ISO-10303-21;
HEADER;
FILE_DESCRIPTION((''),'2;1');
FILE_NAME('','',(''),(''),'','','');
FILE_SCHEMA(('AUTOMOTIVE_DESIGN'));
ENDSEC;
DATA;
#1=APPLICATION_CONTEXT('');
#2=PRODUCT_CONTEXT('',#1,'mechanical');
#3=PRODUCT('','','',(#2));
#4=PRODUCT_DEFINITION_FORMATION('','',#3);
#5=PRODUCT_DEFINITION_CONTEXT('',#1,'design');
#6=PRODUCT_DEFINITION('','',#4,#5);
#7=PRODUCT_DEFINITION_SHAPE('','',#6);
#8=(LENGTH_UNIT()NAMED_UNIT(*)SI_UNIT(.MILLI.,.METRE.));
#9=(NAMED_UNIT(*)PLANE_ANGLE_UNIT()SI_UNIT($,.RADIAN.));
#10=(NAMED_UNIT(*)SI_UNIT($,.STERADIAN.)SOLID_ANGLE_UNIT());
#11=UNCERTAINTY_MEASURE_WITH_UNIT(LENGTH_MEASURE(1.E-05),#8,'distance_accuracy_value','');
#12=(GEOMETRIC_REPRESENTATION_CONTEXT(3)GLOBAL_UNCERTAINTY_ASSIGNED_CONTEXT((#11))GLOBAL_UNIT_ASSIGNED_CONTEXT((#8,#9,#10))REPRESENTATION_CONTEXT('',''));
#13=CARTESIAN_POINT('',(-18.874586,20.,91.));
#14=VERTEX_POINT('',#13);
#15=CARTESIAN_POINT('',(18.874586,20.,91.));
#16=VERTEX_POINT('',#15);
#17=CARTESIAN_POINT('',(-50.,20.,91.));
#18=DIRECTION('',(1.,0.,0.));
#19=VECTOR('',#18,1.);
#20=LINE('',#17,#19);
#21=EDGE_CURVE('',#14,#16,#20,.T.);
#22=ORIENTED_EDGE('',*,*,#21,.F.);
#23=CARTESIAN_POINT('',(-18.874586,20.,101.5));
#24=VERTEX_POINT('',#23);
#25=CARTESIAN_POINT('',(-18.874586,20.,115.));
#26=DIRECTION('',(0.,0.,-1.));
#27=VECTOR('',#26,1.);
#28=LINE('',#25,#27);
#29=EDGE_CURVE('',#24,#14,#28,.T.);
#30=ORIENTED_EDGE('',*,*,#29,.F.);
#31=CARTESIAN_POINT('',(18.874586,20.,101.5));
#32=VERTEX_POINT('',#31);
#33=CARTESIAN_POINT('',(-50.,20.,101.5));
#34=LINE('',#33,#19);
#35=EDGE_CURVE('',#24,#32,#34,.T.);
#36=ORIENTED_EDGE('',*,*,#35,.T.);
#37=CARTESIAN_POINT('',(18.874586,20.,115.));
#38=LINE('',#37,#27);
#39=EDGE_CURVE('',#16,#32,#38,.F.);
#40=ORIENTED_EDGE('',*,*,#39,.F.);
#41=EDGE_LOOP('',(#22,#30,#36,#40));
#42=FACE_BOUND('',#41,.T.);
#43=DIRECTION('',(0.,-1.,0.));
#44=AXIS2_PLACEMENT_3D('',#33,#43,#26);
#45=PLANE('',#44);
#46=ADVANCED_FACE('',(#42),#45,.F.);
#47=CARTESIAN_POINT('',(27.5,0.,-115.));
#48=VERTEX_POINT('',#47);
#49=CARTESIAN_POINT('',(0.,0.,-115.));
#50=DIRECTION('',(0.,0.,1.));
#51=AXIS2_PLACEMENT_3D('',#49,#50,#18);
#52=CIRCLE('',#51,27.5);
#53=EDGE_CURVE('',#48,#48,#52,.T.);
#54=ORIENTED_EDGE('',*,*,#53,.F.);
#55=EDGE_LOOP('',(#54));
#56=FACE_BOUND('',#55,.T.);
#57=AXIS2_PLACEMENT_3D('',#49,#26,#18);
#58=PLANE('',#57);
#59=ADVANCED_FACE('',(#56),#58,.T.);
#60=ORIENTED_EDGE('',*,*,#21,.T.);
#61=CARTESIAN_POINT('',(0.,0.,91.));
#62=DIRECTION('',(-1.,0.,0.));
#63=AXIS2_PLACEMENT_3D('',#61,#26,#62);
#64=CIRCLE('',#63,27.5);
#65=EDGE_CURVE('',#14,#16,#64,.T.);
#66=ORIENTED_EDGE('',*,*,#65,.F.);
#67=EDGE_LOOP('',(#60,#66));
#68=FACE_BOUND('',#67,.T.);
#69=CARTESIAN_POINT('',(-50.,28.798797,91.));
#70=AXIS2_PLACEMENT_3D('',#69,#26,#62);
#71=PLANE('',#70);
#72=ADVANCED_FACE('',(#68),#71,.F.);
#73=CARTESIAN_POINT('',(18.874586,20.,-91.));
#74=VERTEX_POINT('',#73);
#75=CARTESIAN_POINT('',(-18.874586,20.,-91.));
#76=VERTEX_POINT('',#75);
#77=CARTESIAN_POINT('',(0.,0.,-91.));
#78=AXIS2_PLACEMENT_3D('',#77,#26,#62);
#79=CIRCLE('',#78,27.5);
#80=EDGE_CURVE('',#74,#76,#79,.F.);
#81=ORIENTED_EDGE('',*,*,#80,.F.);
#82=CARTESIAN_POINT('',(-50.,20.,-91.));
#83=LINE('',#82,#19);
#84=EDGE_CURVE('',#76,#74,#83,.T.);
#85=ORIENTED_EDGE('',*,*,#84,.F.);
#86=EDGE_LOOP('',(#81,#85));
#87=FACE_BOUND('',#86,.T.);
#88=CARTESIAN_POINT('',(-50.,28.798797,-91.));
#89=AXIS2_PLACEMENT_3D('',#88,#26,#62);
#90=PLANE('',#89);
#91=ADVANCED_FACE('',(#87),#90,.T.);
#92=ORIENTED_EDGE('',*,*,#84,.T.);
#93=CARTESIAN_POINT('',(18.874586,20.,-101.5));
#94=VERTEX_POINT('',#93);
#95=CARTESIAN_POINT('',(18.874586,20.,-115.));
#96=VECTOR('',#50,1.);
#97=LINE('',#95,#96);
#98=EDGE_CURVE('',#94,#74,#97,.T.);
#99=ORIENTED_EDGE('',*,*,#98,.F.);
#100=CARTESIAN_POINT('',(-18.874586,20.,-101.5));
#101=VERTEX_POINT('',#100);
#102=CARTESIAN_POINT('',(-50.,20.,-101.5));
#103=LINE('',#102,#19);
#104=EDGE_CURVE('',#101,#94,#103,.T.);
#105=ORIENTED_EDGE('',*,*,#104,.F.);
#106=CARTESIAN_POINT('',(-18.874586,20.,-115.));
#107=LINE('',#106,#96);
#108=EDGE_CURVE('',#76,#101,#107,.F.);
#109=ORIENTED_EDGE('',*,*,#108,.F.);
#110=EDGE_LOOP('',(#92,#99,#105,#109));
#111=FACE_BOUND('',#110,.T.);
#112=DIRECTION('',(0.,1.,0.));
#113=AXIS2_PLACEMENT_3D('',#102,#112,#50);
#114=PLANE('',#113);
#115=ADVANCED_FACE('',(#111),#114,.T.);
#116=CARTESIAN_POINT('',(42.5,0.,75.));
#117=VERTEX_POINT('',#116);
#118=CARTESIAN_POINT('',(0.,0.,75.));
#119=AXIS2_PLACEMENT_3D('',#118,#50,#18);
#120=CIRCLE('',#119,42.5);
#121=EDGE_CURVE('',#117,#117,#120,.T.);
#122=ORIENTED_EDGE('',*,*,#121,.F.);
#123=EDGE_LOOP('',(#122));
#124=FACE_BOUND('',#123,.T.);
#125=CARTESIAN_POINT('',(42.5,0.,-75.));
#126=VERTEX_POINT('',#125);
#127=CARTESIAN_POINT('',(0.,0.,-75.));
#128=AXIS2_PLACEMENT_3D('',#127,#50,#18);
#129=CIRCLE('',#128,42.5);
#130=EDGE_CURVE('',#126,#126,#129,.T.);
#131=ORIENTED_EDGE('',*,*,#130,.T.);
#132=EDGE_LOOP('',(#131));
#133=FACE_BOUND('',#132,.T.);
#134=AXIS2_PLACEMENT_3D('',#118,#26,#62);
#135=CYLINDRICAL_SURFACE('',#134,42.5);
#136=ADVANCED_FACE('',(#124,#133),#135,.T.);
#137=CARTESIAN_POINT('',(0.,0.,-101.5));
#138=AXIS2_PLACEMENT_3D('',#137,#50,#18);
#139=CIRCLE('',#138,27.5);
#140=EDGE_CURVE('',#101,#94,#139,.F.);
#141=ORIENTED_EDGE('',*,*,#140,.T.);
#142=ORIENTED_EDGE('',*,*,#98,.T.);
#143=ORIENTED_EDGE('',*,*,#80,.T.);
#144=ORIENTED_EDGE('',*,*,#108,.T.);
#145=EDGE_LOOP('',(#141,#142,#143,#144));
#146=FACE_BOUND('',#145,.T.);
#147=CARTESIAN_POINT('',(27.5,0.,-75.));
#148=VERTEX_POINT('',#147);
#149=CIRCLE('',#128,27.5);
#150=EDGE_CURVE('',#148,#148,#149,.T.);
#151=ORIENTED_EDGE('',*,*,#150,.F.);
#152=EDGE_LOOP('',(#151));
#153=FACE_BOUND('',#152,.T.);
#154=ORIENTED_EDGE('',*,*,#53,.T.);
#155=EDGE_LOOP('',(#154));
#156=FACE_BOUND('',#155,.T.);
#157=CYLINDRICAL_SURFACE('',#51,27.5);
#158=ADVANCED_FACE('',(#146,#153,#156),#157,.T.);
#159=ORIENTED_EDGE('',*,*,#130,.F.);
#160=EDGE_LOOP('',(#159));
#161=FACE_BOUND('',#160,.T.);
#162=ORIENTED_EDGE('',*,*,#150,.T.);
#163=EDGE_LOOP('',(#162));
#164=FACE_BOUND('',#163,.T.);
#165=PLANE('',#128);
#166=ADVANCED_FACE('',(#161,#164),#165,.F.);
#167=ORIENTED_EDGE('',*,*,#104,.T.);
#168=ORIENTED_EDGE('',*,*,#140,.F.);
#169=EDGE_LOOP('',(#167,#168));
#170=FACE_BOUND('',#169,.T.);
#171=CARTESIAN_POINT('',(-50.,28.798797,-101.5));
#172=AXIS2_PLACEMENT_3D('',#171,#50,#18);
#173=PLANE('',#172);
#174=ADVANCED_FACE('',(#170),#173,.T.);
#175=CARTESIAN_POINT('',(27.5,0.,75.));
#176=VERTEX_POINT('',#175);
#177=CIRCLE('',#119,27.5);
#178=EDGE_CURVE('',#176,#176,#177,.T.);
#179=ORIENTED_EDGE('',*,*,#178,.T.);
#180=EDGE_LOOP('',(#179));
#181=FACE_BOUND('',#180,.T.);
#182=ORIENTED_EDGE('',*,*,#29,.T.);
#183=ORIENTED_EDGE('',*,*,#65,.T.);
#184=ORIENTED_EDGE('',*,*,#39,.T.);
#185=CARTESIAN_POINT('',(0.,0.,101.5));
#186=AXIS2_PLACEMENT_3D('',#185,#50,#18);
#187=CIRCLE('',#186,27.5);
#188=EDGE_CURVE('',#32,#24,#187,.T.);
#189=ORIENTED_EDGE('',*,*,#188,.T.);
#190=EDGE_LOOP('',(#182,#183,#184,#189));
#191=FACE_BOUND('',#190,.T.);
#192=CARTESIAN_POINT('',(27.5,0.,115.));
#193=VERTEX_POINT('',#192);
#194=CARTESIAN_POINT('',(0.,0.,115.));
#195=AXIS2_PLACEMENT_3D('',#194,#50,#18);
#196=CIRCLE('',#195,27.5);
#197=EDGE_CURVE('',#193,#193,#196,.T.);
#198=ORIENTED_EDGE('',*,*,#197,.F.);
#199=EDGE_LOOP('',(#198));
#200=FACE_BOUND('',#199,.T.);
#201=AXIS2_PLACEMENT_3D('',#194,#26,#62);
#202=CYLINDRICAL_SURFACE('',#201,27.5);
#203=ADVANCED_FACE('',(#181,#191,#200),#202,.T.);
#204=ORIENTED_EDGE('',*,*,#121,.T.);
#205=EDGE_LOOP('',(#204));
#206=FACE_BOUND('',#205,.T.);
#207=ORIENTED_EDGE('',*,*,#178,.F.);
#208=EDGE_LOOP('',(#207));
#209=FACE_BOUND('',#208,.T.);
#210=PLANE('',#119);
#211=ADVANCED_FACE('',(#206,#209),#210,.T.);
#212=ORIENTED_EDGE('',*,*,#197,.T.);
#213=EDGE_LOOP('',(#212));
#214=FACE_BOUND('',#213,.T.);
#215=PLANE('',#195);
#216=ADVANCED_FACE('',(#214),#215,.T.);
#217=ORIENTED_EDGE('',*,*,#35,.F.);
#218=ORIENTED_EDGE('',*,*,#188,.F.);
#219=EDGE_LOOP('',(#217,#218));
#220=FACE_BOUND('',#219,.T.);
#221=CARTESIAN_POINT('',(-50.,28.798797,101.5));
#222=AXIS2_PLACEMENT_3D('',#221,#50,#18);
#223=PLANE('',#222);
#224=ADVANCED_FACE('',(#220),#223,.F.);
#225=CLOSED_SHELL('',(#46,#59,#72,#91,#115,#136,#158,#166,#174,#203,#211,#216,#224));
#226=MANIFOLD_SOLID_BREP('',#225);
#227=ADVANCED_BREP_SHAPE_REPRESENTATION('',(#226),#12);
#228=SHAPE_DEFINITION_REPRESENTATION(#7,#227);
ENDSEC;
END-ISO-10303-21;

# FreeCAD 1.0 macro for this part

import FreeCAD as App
import Part
import Sketcher

V = App.Vector

doc = App.newDocument("Part")
body = doc.addObject("PartDesign::Body", "Body")

# Sketch on XY plane
sketch1 = doc.addObject("Sketcher::SketchObject", "Sketch")
body.addObject(sketch1)
sketch1.AttachmentSupport = (doc.XY_Plane, [""])
sketch1.MapMode = "FlatFace"
sketch1.addGeometry(Part.Circle(V(0, 0, 0), V(0, 0, 1), 42.5), False)
sketch1.addConstraint(Sketcher.Constraint("Coincident", 0, 3, -1, 1))
sketch1.addConstraint(Sketcher.Constraint("Diameter", 0, 85.0))
pad1 = doc.addObject("PartDesign::Pad", "Pad")
body.addObject(pad1)
pad1.Profile = sketch1
pad1.Length = 150
pad1.Midplane = True

# Sketch on XY plane
sketch2 = doc.addObject("Sketcher::SketchObject", "Sketch001")
body.addObject(sketch2)
sketch2.AttachmentSupport = (doc.XY_Plane, [""])
sketch2.MapMode = "FlatFace"
sketch2.AttachmentOffset = App.Placement(V(0, 0, 75), App.Rotation())
sketch2.addGeometry(Part.Circle(V(0, 0, 0), V(0, 0, 1), 27.5), False)
sketch2.addConstraint(Sketcher.Constraint("Coincident", 0, 3, -1, 1))
sketch2.addConstraint(Sketcher.Constraint("Diameter", 0, 55.0))
pad2 = doc.addObject("PartDesign::Pad", "Pad001")
body.addObject(pad2)
pad2.Profile = sketch2
pad2.Length = 40

# Sketch on YZ plane
sketch3 = doc.addObject("Sketcher::SketchObject", "Sketch002")
body.addObject(sketch3)
sketch3.AttachmentSupport = (doc.YZ_Plane, [""])
sketch3.MapMode = "FlatFace"
sketch3.addGeometry(Part.LineSegment(V(28.798797, 101.5, 0), V(20, 101.5, 0)), False)
sketch3.addGeometry(Part.LineSegment(V(20, 101.5, 0), V(20, 91, 0)), False)
sketch3.addGeometry(Part.LineSegment(V(20, 91, 0), V(28.798797, 91, 0)), False)
sketch3.addGeometry(Part.LineSegment(V(28.798797, 91, 0), V(28.798797, 101.5, 0)), False)
sketch3.addConstraint(Sketcher.Constraint("Coincident", 0, 2, 1, 1))
sketch3.addConstraint(Sketcher.Constraint("Coincident", 1, 2, 2, 1))
sketch3.addConstraint(Sketcher.Constraint("Coincident", 2, 2, 3, 1))
sketch3.addConstraint(Sketcher.Constraint("Coincident", 3, 2, 0, 1))
sketch3.addConstraint(Sketcher.Constraint("Horizontal", 0))
sketch3.addConstraint(Sketcher.Constraint("Vertical", 1))
sketch3.addConstraint(Sketcher.Constraint("Horizontal", 2))
sketch3.addConstraint(Sketcher.Constraint("Vertical", 3))
sketch3.addConstraint(Sketcher.Constraint("DistanceY", 1, 2, 1, 1, 10.5))
sketch3.addConstraint(Sketcher.Constraint("DistanceX", -1, 1, 0, 2, 20.0))
sketch3.addConstraint(Sketcher.Constraint("DistanceY", -1, 1, 1, 2, 91.0))
sketch3.addConstraint(Sketcher.Constraint("DistanceX", 0, 2, 0, 1, 8.798797))
pocket1 = doc.addObject("PartDesign::Pocket", "Pocket")
body.addObject(pocket1)
pocket1.Profile = sketch3
pocket1.Length = 100
pocket1.Midplane = True
doc.recompute()

mirrored = doc.addObject("PartDesign::Mirrored", "Mirrored")
body.addObject(mirrored)
mirrored.Originals = [pad2, pocket1]
mirrored.MirrorPlane = (doc.XY_Plane, [""])
body.Tip = mirrored

doc.recompute()
